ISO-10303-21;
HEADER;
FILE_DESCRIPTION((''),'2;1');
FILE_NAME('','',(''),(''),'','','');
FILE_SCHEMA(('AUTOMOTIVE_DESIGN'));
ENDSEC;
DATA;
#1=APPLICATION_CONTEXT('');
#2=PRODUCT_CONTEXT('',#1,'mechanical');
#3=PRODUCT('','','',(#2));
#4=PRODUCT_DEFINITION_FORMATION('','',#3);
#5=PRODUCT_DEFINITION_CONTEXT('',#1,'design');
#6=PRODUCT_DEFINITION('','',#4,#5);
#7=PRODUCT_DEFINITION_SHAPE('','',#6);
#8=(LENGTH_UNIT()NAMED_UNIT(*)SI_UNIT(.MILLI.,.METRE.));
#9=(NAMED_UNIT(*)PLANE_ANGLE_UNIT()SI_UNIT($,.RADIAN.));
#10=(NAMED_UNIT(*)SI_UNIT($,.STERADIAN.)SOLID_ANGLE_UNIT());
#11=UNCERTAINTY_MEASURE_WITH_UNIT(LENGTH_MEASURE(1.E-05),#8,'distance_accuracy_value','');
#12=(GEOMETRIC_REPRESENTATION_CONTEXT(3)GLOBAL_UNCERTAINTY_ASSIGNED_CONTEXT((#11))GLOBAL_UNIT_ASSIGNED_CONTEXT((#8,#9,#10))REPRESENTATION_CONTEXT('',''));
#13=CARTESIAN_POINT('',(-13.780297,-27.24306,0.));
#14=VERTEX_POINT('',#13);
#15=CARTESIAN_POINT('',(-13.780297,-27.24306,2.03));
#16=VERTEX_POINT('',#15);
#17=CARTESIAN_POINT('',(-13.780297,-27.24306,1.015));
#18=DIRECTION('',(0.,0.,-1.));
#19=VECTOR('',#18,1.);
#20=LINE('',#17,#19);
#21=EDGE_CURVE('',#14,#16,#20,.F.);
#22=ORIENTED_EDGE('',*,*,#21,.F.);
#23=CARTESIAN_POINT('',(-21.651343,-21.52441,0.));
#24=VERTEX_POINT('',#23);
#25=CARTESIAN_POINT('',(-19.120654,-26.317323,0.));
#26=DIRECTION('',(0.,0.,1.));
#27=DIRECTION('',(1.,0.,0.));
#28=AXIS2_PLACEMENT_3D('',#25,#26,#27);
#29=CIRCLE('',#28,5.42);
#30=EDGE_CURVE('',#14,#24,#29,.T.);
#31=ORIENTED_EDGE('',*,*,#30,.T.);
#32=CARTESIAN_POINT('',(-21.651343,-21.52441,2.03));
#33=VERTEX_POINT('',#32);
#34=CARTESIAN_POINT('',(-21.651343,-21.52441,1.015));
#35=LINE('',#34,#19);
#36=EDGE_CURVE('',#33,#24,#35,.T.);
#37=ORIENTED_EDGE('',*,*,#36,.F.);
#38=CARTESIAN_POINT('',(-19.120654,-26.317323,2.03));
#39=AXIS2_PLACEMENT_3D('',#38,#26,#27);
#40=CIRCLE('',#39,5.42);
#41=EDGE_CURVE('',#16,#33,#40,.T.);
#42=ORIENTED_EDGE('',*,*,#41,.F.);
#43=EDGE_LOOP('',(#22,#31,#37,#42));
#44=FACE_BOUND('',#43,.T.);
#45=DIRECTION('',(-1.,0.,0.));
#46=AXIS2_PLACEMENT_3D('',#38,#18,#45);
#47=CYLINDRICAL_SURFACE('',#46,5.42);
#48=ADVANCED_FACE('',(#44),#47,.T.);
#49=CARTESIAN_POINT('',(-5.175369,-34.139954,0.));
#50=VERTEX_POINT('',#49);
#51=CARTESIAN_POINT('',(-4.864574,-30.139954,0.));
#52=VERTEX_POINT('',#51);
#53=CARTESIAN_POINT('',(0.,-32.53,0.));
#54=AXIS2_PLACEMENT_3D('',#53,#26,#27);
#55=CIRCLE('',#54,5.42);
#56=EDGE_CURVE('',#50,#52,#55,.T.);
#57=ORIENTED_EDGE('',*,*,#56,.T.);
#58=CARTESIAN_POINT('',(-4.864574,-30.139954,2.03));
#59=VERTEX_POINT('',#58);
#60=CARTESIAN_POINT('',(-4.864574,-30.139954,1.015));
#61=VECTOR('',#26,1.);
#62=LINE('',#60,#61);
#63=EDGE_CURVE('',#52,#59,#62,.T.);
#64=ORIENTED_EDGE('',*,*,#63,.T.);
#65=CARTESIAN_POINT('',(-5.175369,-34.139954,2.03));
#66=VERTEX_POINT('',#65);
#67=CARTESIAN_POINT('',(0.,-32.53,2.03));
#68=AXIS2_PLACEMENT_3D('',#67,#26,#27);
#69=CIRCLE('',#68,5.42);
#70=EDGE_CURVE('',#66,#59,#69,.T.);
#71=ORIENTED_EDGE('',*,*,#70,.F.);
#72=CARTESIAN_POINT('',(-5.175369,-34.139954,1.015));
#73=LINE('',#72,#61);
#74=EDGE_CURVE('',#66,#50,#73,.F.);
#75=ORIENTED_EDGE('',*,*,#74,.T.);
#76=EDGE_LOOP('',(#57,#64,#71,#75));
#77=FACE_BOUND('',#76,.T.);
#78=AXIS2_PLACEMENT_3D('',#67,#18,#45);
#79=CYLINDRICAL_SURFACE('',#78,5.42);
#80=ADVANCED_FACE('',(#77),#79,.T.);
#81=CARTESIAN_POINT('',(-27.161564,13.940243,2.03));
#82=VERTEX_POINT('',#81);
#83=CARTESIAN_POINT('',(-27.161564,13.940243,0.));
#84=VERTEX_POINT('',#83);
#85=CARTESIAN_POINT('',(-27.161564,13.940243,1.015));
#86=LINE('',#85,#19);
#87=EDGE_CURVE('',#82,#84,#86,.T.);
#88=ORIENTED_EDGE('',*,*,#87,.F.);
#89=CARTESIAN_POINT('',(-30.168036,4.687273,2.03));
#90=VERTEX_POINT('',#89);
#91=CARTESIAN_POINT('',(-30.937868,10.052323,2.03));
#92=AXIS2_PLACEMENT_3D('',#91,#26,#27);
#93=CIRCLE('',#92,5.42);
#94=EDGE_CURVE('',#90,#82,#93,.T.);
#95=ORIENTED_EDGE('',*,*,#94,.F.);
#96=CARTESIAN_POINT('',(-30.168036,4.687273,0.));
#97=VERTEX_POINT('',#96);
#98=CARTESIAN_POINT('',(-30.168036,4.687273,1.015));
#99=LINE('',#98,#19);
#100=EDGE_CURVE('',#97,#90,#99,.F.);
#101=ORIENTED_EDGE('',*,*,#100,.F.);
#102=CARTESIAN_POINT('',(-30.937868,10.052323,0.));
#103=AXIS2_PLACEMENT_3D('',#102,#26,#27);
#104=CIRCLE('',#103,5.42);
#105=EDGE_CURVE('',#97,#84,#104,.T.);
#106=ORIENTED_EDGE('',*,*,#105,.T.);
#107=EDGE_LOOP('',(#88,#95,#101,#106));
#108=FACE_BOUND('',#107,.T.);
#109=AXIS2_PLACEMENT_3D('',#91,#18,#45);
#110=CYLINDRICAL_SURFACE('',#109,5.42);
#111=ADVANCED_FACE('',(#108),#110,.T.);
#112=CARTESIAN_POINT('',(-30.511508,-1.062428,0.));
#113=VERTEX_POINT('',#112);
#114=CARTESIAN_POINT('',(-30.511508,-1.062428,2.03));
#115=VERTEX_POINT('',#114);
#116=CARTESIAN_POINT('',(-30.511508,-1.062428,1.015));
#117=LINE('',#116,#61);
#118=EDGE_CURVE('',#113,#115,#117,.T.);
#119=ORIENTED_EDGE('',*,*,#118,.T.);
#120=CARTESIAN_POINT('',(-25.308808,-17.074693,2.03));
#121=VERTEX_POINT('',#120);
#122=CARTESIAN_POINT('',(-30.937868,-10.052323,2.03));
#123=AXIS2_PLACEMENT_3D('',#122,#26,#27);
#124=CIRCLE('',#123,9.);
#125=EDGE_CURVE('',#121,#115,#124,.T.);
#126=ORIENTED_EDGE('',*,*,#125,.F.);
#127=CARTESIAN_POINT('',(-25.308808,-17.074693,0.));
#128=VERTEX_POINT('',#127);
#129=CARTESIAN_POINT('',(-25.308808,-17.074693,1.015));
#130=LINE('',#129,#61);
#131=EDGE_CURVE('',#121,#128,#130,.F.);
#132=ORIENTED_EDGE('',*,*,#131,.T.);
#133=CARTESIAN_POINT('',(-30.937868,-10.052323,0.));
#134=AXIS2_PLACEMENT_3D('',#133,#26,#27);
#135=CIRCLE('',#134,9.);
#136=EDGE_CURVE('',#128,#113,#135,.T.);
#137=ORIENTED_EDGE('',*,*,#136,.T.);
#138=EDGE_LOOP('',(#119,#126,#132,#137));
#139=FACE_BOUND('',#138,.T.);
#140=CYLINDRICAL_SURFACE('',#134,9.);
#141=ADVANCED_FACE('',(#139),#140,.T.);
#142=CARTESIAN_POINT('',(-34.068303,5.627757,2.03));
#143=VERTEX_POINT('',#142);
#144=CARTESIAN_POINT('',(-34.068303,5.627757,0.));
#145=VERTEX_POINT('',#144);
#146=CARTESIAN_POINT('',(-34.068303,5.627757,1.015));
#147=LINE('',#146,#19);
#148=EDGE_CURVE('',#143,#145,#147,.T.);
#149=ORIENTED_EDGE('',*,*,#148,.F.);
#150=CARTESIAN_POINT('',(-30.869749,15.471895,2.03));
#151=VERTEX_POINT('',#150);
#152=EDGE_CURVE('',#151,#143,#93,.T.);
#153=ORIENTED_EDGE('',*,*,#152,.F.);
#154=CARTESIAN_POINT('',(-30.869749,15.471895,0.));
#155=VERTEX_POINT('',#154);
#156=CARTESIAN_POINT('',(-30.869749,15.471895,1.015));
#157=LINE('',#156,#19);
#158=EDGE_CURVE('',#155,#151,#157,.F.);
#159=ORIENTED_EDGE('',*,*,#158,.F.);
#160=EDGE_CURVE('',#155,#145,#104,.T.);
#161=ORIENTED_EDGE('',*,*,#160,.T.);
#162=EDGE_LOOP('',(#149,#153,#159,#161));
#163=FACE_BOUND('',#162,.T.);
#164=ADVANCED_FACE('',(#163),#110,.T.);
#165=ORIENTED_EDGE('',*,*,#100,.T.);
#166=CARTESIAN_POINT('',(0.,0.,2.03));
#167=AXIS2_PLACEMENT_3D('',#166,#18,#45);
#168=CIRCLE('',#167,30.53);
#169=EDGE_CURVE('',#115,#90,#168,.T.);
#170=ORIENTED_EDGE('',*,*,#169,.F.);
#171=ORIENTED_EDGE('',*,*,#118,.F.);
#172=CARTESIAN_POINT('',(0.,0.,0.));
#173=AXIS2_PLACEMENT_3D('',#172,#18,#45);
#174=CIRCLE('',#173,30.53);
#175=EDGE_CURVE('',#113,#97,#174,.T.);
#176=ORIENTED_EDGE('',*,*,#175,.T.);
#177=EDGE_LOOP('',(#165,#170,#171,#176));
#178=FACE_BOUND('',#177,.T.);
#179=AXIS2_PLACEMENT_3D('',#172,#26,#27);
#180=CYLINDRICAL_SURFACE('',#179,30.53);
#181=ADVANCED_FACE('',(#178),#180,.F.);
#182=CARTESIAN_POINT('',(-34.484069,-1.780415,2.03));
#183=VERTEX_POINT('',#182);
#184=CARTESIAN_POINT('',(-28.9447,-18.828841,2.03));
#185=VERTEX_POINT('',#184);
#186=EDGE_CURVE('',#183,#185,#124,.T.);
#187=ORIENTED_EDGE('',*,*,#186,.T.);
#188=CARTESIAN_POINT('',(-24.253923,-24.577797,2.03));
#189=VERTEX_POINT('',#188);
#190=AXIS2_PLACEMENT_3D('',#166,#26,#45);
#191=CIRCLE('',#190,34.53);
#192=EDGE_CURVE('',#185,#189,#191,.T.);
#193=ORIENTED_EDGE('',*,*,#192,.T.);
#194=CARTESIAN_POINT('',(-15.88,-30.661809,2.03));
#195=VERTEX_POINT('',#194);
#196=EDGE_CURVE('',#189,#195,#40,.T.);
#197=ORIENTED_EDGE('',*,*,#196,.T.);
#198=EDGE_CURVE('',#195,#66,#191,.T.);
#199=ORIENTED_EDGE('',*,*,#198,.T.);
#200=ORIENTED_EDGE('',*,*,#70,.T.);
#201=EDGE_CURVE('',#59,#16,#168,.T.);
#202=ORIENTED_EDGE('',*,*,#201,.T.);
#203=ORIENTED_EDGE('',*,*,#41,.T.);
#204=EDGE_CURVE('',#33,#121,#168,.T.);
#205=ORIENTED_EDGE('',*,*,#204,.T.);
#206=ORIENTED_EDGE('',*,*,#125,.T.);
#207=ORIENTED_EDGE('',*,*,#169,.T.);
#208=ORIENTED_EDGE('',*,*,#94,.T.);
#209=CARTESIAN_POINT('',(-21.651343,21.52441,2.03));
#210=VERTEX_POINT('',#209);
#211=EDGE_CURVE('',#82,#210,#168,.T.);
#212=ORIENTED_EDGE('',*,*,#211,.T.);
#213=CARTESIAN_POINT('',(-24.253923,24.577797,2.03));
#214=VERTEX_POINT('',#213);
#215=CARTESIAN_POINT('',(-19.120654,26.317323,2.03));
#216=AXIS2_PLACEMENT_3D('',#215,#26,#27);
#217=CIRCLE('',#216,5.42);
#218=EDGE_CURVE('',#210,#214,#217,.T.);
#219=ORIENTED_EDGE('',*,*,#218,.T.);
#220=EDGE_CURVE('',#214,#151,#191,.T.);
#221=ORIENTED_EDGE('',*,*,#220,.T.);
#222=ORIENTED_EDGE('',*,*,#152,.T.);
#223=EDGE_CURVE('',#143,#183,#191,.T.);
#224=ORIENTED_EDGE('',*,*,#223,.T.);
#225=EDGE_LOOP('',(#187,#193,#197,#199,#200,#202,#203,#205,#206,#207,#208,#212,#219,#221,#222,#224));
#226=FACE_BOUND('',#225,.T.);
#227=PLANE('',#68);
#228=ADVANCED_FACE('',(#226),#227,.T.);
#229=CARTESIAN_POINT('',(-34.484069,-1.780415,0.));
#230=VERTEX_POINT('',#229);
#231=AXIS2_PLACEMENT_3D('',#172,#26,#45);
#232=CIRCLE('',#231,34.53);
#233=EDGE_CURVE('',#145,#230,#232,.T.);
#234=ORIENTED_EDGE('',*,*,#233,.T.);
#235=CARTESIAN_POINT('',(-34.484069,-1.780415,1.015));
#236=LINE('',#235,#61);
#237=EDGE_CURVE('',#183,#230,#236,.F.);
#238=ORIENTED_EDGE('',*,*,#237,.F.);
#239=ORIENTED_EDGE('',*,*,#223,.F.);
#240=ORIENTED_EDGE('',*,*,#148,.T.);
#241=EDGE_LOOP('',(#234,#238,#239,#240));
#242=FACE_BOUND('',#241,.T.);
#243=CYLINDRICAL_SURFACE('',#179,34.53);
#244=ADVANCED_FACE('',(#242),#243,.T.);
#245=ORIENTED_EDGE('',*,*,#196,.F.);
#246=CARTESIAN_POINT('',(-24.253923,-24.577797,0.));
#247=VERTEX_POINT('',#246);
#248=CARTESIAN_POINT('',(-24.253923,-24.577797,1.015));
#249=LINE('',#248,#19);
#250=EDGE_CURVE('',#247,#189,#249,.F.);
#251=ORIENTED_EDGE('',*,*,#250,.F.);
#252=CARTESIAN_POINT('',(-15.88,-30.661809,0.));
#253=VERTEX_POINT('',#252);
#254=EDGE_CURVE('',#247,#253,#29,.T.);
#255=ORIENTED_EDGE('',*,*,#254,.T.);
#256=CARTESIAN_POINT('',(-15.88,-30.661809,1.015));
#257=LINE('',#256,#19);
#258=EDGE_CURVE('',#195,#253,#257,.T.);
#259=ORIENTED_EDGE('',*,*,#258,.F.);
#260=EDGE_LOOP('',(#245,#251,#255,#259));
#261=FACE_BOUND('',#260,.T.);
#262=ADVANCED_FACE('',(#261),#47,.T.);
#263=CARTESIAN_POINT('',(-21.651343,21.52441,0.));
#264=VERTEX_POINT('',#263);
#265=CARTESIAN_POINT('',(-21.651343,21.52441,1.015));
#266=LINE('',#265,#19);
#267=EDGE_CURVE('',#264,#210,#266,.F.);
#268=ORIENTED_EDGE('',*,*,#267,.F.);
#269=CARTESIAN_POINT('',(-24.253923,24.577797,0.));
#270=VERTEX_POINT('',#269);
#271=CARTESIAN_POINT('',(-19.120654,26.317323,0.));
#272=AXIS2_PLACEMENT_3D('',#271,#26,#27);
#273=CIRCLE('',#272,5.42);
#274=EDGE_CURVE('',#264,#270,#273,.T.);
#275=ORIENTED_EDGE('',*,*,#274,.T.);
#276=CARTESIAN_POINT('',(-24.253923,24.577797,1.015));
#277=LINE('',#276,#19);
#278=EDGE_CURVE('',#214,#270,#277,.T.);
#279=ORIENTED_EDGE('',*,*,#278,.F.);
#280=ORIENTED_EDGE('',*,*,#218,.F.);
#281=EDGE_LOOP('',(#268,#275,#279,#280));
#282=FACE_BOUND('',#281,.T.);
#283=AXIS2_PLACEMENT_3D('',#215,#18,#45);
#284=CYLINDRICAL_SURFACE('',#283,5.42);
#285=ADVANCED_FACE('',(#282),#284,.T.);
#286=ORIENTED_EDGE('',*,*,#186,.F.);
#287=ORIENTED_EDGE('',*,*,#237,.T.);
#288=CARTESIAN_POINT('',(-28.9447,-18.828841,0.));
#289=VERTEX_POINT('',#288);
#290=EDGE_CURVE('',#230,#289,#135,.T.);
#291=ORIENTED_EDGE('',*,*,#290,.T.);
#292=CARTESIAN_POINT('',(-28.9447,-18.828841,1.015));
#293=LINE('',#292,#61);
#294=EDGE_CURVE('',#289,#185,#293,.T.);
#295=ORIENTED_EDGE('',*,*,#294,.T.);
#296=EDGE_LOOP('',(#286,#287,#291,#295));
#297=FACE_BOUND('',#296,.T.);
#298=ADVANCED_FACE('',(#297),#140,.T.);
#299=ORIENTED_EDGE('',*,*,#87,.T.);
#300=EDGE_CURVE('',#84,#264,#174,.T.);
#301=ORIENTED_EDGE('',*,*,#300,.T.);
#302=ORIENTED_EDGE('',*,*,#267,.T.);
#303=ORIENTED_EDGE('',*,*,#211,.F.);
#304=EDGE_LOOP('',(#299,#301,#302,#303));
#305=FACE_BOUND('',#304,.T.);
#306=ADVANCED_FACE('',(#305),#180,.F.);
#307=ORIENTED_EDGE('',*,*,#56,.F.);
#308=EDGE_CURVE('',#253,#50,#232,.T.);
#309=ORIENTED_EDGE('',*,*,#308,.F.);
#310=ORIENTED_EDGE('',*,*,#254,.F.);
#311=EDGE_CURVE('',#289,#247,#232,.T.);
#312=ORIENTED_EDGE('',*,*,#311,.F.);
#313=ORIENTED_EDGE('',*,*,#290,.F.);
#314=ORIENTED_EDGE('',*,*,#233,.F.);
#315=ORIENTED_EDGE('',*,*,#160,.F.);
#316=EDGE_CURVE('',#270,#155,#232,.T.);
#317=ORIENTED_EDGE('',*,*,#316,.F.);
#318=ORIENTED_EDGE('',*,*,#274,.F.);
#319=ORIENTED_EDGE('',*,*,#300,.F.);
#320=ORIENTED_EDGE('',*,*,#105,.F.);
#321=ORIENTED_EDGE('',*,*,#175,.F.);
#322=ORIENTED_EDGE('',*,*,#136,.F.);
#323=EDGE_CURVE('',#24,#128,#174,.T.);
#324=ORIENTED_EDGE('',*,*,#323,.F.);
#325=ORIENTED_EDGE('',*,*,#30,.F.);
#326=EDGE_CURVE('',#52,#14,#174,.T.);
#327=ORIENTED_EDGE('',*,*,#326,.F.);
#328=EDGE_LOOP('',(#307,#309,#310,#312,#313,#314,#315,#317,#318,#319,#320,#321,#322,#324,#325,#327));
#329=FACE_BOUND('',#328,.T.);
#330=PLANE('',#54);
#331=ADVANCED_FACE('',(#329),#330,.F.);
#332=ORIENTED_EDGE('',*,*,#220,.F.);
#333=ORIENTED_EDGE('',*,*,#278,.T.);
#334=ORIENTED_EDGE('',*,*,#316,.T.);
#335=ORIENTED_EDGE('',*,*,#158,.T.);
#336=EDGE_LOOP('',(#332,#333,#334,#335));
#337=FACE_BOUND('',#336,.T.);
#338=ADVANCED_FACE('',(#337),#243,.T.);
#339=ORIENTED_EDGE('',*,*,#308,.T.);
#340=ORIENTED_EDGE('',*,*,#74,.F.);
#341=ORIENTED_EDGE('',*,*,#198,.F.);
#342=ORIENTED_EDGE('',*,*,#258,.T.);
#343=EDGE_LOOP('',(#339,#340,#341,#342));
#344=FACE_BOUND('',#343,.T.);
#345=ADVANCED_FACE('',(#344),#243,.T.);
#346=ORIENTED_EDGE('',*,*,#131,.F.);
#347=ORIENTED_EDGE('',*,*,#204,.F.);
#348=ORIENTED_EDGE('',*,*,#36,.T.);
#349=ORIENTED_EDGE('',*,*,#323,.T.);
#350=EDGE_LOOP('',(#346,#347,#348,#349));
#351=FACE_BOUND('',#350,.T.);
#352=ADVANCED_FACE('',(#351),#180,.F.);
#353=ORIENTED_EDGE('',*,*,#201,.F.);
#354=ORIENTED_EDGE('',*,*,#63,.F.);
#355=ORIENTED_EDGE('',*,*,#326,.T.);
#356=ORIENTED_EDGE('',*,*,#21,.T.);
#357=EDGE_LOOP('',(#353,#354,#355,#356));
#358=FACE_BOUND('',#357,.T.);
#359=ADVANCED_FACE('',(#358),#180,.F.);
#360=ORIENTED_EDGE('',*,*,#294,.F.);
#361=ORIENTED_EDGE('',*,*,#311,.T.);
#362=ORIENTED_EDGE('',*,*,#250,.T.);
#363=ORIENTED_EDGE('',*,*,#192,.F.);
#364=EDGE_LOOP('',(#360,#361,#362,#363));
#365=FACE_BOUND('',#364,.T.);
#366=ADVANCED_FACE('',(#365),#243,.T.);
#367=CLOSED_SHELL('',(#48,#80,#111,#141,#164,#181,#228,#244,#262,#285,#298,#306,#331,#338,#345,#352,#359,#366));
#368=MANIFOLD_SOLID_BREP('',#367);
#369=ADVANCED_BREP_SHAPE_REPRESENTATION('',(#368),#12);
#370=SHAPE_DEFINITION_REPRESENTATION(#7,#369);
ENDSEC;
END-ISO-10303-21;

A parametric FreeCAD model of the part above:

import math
import FreeCAD as App
import Part
import Sketcher

V = App.Vector
Q = App.Units.Quantity

doc = App.newDocument("Part")
params = doc.addObject("Spreadsheet::Sheet", "Params")
for row, (alias, value) in enumerate([
    ("sketch1_diameter", "10.84 mm"),
    ("pad1_length", "2.03 mm"),
    ("sketch2_diameter", "10.84 mm"),
    ("pad2_length", "2.03 mm"),
    ("sketch3_diameter", "10.84 mm"),
    ("pad3_length", "2.03 mm"),
    ("sketch4_diameter", "10.84 mm"),
    ("pad4_length", "2.03 mm"),
    ("sketch5_diameter", "10.84 mm"),
    ("pad5_length", "2.03 mm"),
    ("sketch6_height", "4 mm"),
    ("sketch6_radius", "34.53 mm"),
    ("pad6_length", "2.03 mm"),
    ("sketch7_diameter", "18 mm"),
    ("pad7_length", "2.03 mm"),
], start=1):
    params.set(f"A{row}", alias)
    params.set(f"B{row}", "=" + value)
    params.setAlias(f"B{row}", alias)

body = doc.addObject("PartDesign::Body", "Body")

# Sketch on XY plane
sketch1 = body.newObject("Sketcher::SketchObject", "Sketch")
sketch1.AttachmentSupport = (doc.getObject("XY_Plane"), [""])
sketch1.MapMode = "FlatFace"
sketch1.addGeometry(Part.Circle(V(0, -33, 0), V(0, 0, 1), 5), False)
sketch1.addConstraint(Sketcher.Constraint("PointOnObject", 0, 3, -2))
sketch1.addConstraint(Sketcher.Constraint("Diameter", 0, 10.84))
sketch1.addConstraint(Sketcher.Constraint("DistanceY", 0, 3, -1, 1, 32.53))
sketch1.setExpression("Constraints[1]", "Params.sketch1_diameter")
pad1 = body.newObject("PartDesign::Pad", "Pad")
pad1.Profile = sketch1
pad1.setExpression("Length", "Params.pad1_length")
body2 = doc.addObject("PartDesign::Body", "Body001")

# Sketch on XY plane
sketch2 = body2.newObject("Sketcher::SketchObject", "Sketch001")
sketch2.AttachmentSupport = (doc.getObject("XY_Plane001"), [""])
sketch2.MapMode = "FlatFace"
sketch2.addGeometry(Part.Circle(V(-19, -26, 0), V(0, 0, 1), 5), False)
sketch2.addConstraint(Sketcher.Constraint("Diameter", 0, 10.84))
sketch2.addConstraint(Sketcher.Constraint("DistanceX", 0, 3, -1, 1, 19.120654))
sketch2.addConstraint(Sketcher.Constraint("DistanceY", 0, 3, -1, 1, 26.317323))
sketch2.setExpression("Constraints[0]", "Params.sketch2_diameter")
pad2 = body2.newObject("PartDesign::Pad", "Pad001")
pad2.Profile = sketch2
pad2.setExpression("Length", "Params.pad2_length")
body3 = doc.addObject("PartDesign::Body", "Body002")

# Sketch on XY plane
sketch3 = body3.newObject("Sketcher::SketchObject", "Sketch002")
sketch3.AttachmentSupport = (doc.getObject("XY_Plane002"), [""])
sketch3.MapMode = "FlatFace"
sketch3.addGeometry(Part.Circle(V(-31, -10, 0), V(0, 0, 1), 5), False)
sketch3.addConstraint(Sketcher.Constraint("Diameter", 0, 10.84))
sketch3.addConstraint(Sketcher.Constraint("DistanceX", 0, 3, -1, 1, 30.937868))
sketch3.addConstraint(Sketcher.Constraint("DistanceY", 0, 3, -1, 1, 10.052323))
sketch3.setExpression("Constraints[0]", "Params.sketch3_diameter")
pad3 = body3.newObject("PartDesign::Pad", "Pad002")
pad3.Profile = sketch3
pad3.setExpression("Length", "Params.pad3_length")
body4 = doc.addObject("PartDesign::Body", "Body003")

# Sketch on XY plane
sketch4 = body4.newObject("Sketcher::SketchObject", "Sketch003")
sketch4.AttachmentSupport = (doc.getObject("XY_Plane003"), [""])
sketch4.MapMode = "FlatFace"
sketch4.addGeometry(Part.Circle(V(-31, 10, 0), V(0, 0, 1), 5), False)
sketch4.addConstraint(Sketcher.Constraint("Diameter", 0, 10.84))
sketch4.addConstraint(Sketcher.Constraint("DistanceX", 0, 3, -1, 1, 30.937868))
sketch4.addConstraint(Sketcher.Constraint("DistanceY", -1, 1, 0, 3, 10.052323))
sketch4.setExpression("Constraints[0]", "Params.sketch4_diameter")
pad4 = body4.newObject("PartDesign::Pad", "Pad003")
pad4.Profile = sketch4
pad4.setExpression("Length", "Params.pad4_length")
body5 = doc.addObject("PartDesign::Body", "Body004")

# Sketch on XY plane
sketch5 = body5.newObject("Sketcher::SketchObject", "Sketch004")
sketch5.AttachmentSupport = (doc.getObject("XY_Plane004"), [""])
sketch5.MapMode = "FlatFace"
sketch5.addGeometry(Part.Circle(V(-19, 26, 0), V(0, 0, 1), 5), False)
sketch5.addConstraint(Sketcher.Constraint("Diameter", 0, 10.84))
sketch5.addConstraint(Sketcher.Constraint("DistanceX", 0, 3, -1, 1, 19.120654))
sketch5.addConstraint(Sketcher.Constraint("DistanceY", -1, 1, 0, 3, 26.317323))
sketch5.setExpression("Constraints[0]", "Params.sketch5_diameter")
pad5 = body5.newObject("PartDesign::Pad", "Pad004")
pad5.Profile = sketch5
pad5.setExpression("Length", "Params.pad5_length")
body.AllowCompound = True
doc.recompute()

boolean = body.newObject("PartDesign::Boolean", "Boolean")
boolean.Type = "Fuse"
boolean.addObjects([body2])
doc.recompute()

boolean2 = body.newObject("PartDesign::Boolean", "Boolean001")
boolean2.Type = "Fuse"
boolean2.addObjects([body3])
doc.recompute()

boolean3 = body.newObject("PartDesign::Boolean", "Boolean002")
boolean3.Type = "Fuse"
boolean3.addObjects([body4])
doc.recompute()

boolean4 = body.newObject("PartDesign::Boolean", "Boolean003")
boolean4.Type = "Fuse"
boolean4.addObjects([body5])

# Sketch on XY plane
sketch6 = body.newObject("Sketcher::SketchObject", "Sketch005")
sketch6.AttachmentSupport = (doc.getObject("XY_Plane"), [""])
sketch6.MapMode = "FlatFace"
sketch6.AttachmentOffset = App.Placement(V(0, 0, 2.03), App.Rotation())
sketch6.addGeometry(Part.LineSegment(V(-17.9, 24.7, 0), V(-20.3, 27.9, 0)), False)
sketch6.addGeometry(Part.ArcOfCircle(Part.Circle(V(0, 0, 0), V(0, 0, 1), 34.5), math.radians(126), math.radians(270)), False)
sketch6.addGeometry(Part.LineSegment(V(0, -34.5, 0), V(0, -30.5, 0)), False)
sketch6.addGeometry(Part.ArcOfCircle(Part.Circle(V(0, 0, 0), V(0, 0, 1), 30.5), math.radians(126), math.radians(270)), False)
sketch6.addConstraint(Sketcher.Constraint("Coincident", 0, 2, 1, 1))
sketch6.addConstraint(Sketcher.Constraint("Coincident", 1, 2, 2, 1))
sketch6.addConstraint(Sketcher.Constraint("Coincident", 2, 2, 3, 2))
sketch6.addConstraint(Sketcher.Constraint("Coincident", 3, 1, 0, 1))
sketch6.addConstraint(Sketcher.Constraint("Vertical", 2))
sketch6.addConstraint(Sketcher.Constraint("Coincident", 1, 3, -1, 1))
sketch6.addConstraint(Sketcher.Constraint("Coincident", 3, 3, -1, 1))
sketch6.addConstraint(Sketcher.Constraint("PointOnObject", 1, 2, -2))
sketch6.addConstraint(Sketcher.Constraint("DistanceY", 2, 1, 2, 2, 4.0))
sketch6.addConstraint(Sketcher.Constraint("Angle", 0, Q("126 deg")))
sketch6.addConstraint(Sketcher.Constraint("Radius", 1, 34.53))
sketch6.addConstraint(Sketcher.Constraint("DistanceY", -1, 1, 3, 1, 24.699289))
sketch6.setExpression("Constraints[8]", "Params.sketch6_height")
sketch6.setExpression("Constraints[10]", "Params.sketch6_radius")
pad6 = body.newObject("PartDesign::Pad", "Pad005")
pad6.Profile = sketch6
pad6.setExpression("Length", "Params.pad6_length")
pad6.Reversed = True

# Sketch on XY plane
sketch7 = body.newObject("Sketcher::SketchObject", "Sketch006")
sketch7.AttachmentSupport = (doc.getObject("XY_Plane"), [""])
sketch7.MapMode = "FlatFace"
sketch7.AttachmentOffset = App.Placement(V(0, 0, 2.03), App.Rotation())
sketch7.addGeometry(Part.Circle(V(-31, -10, 0), V(0, 0, 1), 9), False)
sketch7.addConstraint(Sketcher.Constraint("Diameter", 0, 18.0))
sketch7.addConstraint(Sketcher.Constraint("DistanceX", 0, 3, -1, 1, 30.937868))
sketch7.addConstraint(Sketcher.Constraint("DistanceY", 0, 3, -1, 1, 10.052323))
sketch7.setExpression("Constraints[0]", "Params.sketch7_diameter")
pad7 = body.newObject("PartDesign::Pad", "Pad006")
pad7.Profile = sketch7
pad7.setExpression("Length", "Params.pad7_length")
pad7.Reversed = True

doc.recompute()
